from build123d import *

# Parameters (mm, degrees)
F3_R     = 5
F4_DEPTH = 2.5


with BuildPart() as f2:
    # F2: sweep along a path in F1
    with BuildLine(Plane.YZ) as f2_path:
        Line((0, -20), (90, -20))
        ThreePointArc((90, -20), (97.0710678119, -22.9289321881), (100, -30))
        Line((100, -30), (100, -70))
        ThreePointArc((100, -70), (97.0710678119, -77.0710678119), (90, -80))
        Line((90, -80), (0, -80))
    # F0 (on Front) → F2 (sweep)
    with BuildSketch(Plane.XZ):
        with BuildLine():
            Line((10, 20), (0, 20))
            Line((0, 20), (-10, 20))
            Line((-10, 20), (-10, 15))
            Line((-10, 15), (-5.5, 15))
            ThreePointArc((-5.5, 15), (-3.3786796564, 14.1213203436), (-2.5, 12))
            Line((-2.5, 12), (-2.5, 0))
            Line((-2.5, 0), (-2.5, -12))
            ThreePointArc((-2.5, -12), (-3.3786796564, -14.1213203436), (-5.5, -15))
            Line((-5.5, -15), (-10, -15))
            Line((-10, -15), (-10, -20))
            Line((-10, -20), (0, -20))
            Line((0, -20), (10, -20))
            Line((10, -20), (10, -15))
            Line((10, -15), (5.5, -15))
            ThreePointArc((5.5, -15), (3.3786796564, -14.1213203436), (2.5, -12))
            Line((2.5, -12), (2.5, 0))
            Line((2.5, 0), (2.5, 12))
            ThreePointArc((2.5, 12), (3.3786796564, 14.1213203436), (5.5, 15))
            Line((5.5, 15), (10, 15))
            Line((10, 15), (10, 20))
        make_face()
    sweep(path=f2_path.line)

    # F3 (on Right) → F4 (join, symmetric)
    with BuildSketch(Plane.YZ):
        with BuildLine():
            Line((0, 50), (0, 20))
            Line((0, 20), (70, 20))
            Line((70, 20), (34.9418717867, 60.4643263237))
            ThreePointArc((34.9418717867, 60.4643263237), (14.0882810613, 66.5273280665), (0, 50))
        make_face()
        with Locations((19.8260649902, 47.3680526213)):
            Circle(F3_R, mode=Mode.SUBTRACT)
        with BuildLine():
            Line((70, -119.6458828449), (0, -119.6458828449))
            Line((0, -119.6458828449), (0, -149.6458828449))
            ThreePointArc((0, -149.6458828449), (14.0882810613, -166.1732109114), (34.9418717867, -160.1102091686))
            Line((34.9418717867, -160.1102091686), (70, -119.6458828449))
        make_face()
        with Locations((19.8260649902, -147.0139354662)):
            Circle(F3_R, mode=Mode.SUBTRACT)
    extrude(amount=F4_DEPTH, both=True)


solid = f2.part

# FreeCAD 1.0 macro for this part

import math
import FreeCAD as App
import Part
import Sketcher
from FreeCAD import Vector
Q = App.Units.Quantity

doc = App.newDocument("Part")
params = doc.addObject("Spreadsheet::Sheet", "Params")
for row, (alias, value) in enumerate([
    ("sketch1_radius", "3 mm"),
    ("sketch1_width", "20 mm"),
    ("sketch1_height", "5 mm"),
    ("sketch1_height2", "24 mm"),
    ("sketch1_width2", "4.5 mm"),
    ("sketch2_radius", "10 mm"),
    ("sketch2_width", "90 mm"),
    ("sketch2_height", "40 mm"),
    ("sketch3_diameter", "10 mm"),
    ("sketch3_radius", "20 mm"),
    ("sketch3_width", "70 mm"),
    ("sketch3_height", "30 mm"),
    ("pad1_length", "5 mm"),
], start=1):
    params.set(f"A{row}", alias)
    params.set(f"B{row}", "=" + value)
    params.setAlias(f"B{row}", alias)

body = doc.addObject("PartDesign::Body", "Body")

# Sketch on XZ plane
sketch1 = body.newObject("Sketcher::SketchObject", "Sketch")
sketch1.AttachmentSupport = (doc.getObject("XZ_Plane"), [""])
sketch1.MapMode = "FlatFace"
sketch1.addGeometry([
    Part.LineSegment(Vector(10, 20, 0), Vector(-10, 20, 0)),  # 0
    Part.LineSegment(Vector(-10, 20, 0), Vector(-10, 15, 0)),  # 1
    Part.LineSegment(Vector(-10, 15, 0), Vector(-5.5, 15, 0)),  # 2
    Part.ArcOfCircle(Part.Circle(Vector(-5.5, 12, 0), Vector(0, 0, 1), 3), math.radians(0), math.radians(90)),  # 3
    Part.LineSegment(Vector(-2.5, 12, 0), Vector(-2.5, -12, 0)),  # 4
    Part.ArcOfCircle(Part.Circle(Vector(-5.5, -12, 0), Vector(0, 0, 1), 3), math.radians(-90), math.radians(0)),  # 5
    Part.LineSegment(Vector(-5.5, -15, 0), Vector(-10, -15, 0)),  # 6
    Part.LineSegment(Vector(-10, -15, 0), Vector(-10, -20, 0)),  # 7
    Part.LineSegment(Vector(-10, -20, 0), Vector(10, -20, 0)),  # 8
    Part.LineSegment(Vector(10, -20, 0), Vector(10, -15, 0)),  # 9
    Part.LineSegment(Vector(10, -15, 0), Vector(5.5, -15, 0)),  # 10
    Part.ArcOfCircle(Part.Circle(Vector(5.5, -12, 0), Vector(0, 0, 1), 3), math.radians(180), math.radians(270)),  # 11
    Part.LineSegment(Vector(2.5, -12, 0), Vector(2.5, 12, 0)),  # 12
    Part.ArcOfCircle(Part.Circle(Vector(5.5, 12, 0), Vector(0, 0, 1), 3), math.radians(90), math.radians(180)),  # 13
    Part.LineSegment(Vector(5.5, 15, 0), Vector(10, 15, 0)),  # 14
    Part.LineSegment(Vector(10, 15, 0), Vector(10, 20, 0)),  # 15
], False)
sketch1.addConstraint([
    Sketcher.Constraint("Coincident", 0, 2, 1, 1),
    Sketcher.Constraint("Coincident", 1, 2, 2, 1),
    Sketcher.Constraint("Tangent", 2, 2, 3, 2),
    Sketcher.Constraint("Tangent", 3, 1, 4, 1),
    Sketcher.Constraint("Tangent", 4, 2, 5, 2),
    Sketcher.Constraint("Tangent", 5, 1, 6, 1),
    Sketcher.Constraint("Coincident", 6, 2, 7, 1),
    Sketcher.Constraint("Coincident", 7, 2, 8, 1),
    Sketcher.Constraint("Coincident", 8, 2, 9, 1),
    Sketcher.Constraint("Coincident", 9, 2, 10, 1),
    Sketcher.Constraint("Tangent", 10, 2, 11, 2),
    Sketcher.Constraint("Tangent", 11, 1, 12, 1),
    Sketcher.Constraint("Tangent", 12, 2, 13, 2),
    Sketcher.Constraint("Tangent", 13, 1, 14, 1),
    Sketcher.Constraint("Coincident", 14, 2, 15, 1),
    Sketcher.Constraint("Coincident", 15, 2, 0, 1),
    Sketcher.Constraint("Horizontal", 0),
    Sketcher.Constraint("Vertical", 1),
    Sketcher.Constraint("Horizontal", 2),
    Sketcher.Constraint("Vertical", 4),
    Sketcher.Constraint("Horizontal", 6),
    Sketcher.Constraint("Vertical", 7),
    Sketcher.Constraint("Horizontal", 8),
    Sketcher.Constraint("Vertical", 9),
    Sketcher.Constraint("Horizontal", 10),
    Sketcher.Constraint("Vertical", 12),
    Sketcher.Constraint("Horizontal", 14),
    Sketcher.Constraint("Vertical", 15),
    Sketcher.Constraint("Equal", 3, 5),
    Sketcher.Constraint("Equal", 5, 11),
    Sketcher.Constraint("Equal", 11, 13),
    Sketcher.Constraint("Symmetric", 3, 3, 11, 3, -1, 1),
    Sketcher.Constraint("Symmetric", 0, 2, 8, 2, -1, 1),
    Sketcher.Constraint("Symmetric", 6, 2, 14, 2, -1, 1),
    Sketcher.Constraint("Symmetric", 6, 2, 9, 2, -2),
    Sketcher.Constraint("Radius", 3, Q("3 mm")),
    Sketcher.Constraint("DistanceX", 0, 2, 0, 1, Q("20 mm")),
    Sketcher.Constraint("DistanceY", 1, 2, 1, 1, Q("5 mm")),
    Sketcher.Constraint("DistanceY", 4, 2, 4, 1, Q("24 mm")),
    Sketcher.Constraint("DistanceX", 2, 1, 2, 2, Q("4.5 mm")),
])
sketch1.setExpression("Constraints[35]", "Params.sketch1_radius")
sketch1.setExpression("Constraints[36]", "Params.sketch1_width")
sketch1.setExpression("Constraints[37]", "Params.sketch1_height")
sketch1.setExpression("Constraints[38]", "Params.sketch1_height2")
sketch1.setExpression("Constraints[39]", "Params.sketch1_width2")

# Sketch on YZ plane
sketch2 = body.newObject("Sketcher::SketchObject", "Sketch001")
sketch2.AttachmentSupport = (doc.getObject("YZ_Plane"), [""])
sketch2.MapMode = "FlatFace"
sketch2.addGeometry([
    Part.LineSegment(Vector(0, -20, 0), Vector(90, -20, 0)),  # 0
    Part.ArcOfCircle(Part.Circle(Vector(90, -30, 0), Vector(0, 0, 1), 10), math.radians(0), math.radians(90)),  # 1
    Part.LineSegment(Vector(100, -30, 0), Vector(100, -70, 0)),  # 2
    Part.ArcOfCircle(Part.Circle(Vector(90, -70, 0), Vector(0, 0, 1), 10), math.radians(-90), math.radians(0)),  # 3
    Part.LineSegment(Vector(90, -80, 0), Vector(0, -80, 0)),  # 4
], False)
sketch2.addConstraint([
    Sketcher.Constraint("Tangent", 0, 2, 1, 2),
    Sketcher.Constraint("Tangent", 1, 1, 2, 1),
    Sketcher.Constraint("Tangent", 2, 2, 3, 2),
    Sketcher.Constraint("Tangent", 3, 1, 4, 1),
    Sketcher.Constraint("Horizontal", 0),
    Sketcher.Constraint("Vertical", 2),
    Sketcher.Constraint("Horizontal", 4),
    Sketcher.Constraint("Equal", 1, 3),
    Sketcher.Constraint("PointOnObject", 0, 1, -2),
    Sketcher.Constraint("PointOnObject", 4, 2, -2),
    Sketcher.Constraint("Radius", 1, Q("10 mm")),
    Sketcher.Constraint("DistanceX", 0, 1, 0, 2, Q("90 mm")),
    Sketcher.Constraint("DistanceY", 2, 2, 2, 1, Q("40 mm")),
    Sketcher.Constraint("DistanceY", 1, 3, -1, 1, Q("30 mm")),
])
sketch2.setExpression("Constraints[10]", "Params.sketch2_radius")
sketch2.setExpression("Constraints[11]", "Params.sketch2_width")
sketch2.setExpression("Constraints[12]", "Params.sketch2_height")
doc.recompute()

additivepipe = body.newObject("PartDesign::AdditivePipe", "AdditivePipe")
additivepipe.Profile = sketch1
additivepipe.Spine = (sketch2, ["Edge1", "Edge2", "Edge3", "Edge4", "Edge5"])

# Sketch on YZ plane
sketch3 = body.newObject("Sketcher::SketchObject", "Sketch002")
sketch3.AttachmentSupport = (doc.getObject("YZ_Plane"), [""])
sketch3.MapMode = "FlatFace"
sketch3.addGeometry([
    Part.LineSegment(Vector(0, 50, 0), Vector(0, 20, 0)),  # 0
    Part.LineSegment(Vector(0, 20, 0), Vector(70, 20, 0)),  # 1
    Part.LineSegment(Vector(70, 20, 0), Vector(35, 60, 0)),  # 2
    Part.ArcOfCircle(Part.Circle(Vector(20, 47, 0), Vector(0, 0, 1), 20), math.radians(41), math.radians(172)),  # 3
    Part.Circle(Vector(20, 47, 0), Vector(0, 0, 1), 5),  # 4
    Part.LineSegment(Vector(70, -120, 0), Vector(0, -120, 0)),  # 5
    Part.LineSegment(Vector(0, -120, 0), Vector(0, -150, 0)),  # 6
    Part.ArcOfCircle(Part.Circle(Vector(20, -147, 0), Vector(0, 0, 1), 20), math.radians(-172), math.radians(-41)),  # 7
    Part.LineSegment(Vector(35, -160, 0), Vector(70, -120, 0)),  # 8
    Part.Circle(Vector(20, -147, 0), Vector(0, 0, 1), 5),  # 9
], False)
sketch3.addConstraint([
    Sketcher.Constraint("Coincident", 0, 2, 1, 1),
    Sketcher.Constraint("Coincident", 1, 2, 2, 1),
    Sketcher.Constraint("Tangent", 2, 2, 3, 1),
    Sketcher.Constraint("Coincident", 3, 2, 0, 1),
    Sketcher.Constraint("Coincident", 5, 2, 6, 1),
    Sketcher.Constraint("Coincident", 6, 2, 7, 1),
    Sketcher.Constraint("Tangent", 7, 2, 8, 1),
    Sketcher.Constraint("Coincident", 8, 2, 5, 1),
    Sketcher.Constraint("Vertical", 0),
    Sketcher.Constraint("Horizontal", 1),
    Sketcher.Constraint("Horizontal", 5),
    Sketcher.Constraint("Vertical", 6),
    Sketcher.Constraint("Coincident", 4, 3, 3, 3),
    Sketcher.Constraint("Coincident", 9, 3, 7, 3),
    Sketcher.Constraint("Equal", 3, 7),
    Sketcher.Constraint("Equal", 4, 9),
    Sketcher.Constraint("PointOnObject", 0, 2, -2),
    Sketcher.Constraint("PointOnObject", 5, 2, -2),
    Sketcher.Constraint("Vertical", 4, 3, 7, 3),
    Sketcher.Constraint("Vertical", 2, 2, 7, 2),
    Sketcher.Constraint("Vertical", 1, 2, 8, 2),
    Sketcher.Constraint("Diameter", 4, Q("10 mm")),
    Sketcher.Constraint("Radius", 3, Q("20 mm")),
    Sketcher.Constraint("DistanceX", 1, 1, 1, 2, Q("70 mm")),
    Sketcher.Constraint("DistanceY", 0, 2, 0, 1, Q("30 mm")),
    Sketcher.Constraint("DistanceY", -1, 1, 0, 2, Q("20 mm")),
    Sketcher.Constraint("Distance", 2, Q("53.539089 mm")),
    Sketcher.Constraint("DistanceY", 7, 2, -1, 1, Q("160.110209 mm")),
])
sketch3.setExpression("Constraints[21]", "Params.sketch3_diameter")
sketch3.setExpression("Constraints[22]", "Params.sketch3_radius")
sketch3.setExpression("Constraints[23]", "Params.sketch3_width")
sketch3.setExpression("Constraints[24]", "Params.sketch3_height")
pad1 = body.newObject("PartDesign::Pad", "Pad")
pad1.Profile = sketch3
pad1.setExpression("Length", "Params.pad1_length")
pad1.Midplane = True

doc.recompute()
